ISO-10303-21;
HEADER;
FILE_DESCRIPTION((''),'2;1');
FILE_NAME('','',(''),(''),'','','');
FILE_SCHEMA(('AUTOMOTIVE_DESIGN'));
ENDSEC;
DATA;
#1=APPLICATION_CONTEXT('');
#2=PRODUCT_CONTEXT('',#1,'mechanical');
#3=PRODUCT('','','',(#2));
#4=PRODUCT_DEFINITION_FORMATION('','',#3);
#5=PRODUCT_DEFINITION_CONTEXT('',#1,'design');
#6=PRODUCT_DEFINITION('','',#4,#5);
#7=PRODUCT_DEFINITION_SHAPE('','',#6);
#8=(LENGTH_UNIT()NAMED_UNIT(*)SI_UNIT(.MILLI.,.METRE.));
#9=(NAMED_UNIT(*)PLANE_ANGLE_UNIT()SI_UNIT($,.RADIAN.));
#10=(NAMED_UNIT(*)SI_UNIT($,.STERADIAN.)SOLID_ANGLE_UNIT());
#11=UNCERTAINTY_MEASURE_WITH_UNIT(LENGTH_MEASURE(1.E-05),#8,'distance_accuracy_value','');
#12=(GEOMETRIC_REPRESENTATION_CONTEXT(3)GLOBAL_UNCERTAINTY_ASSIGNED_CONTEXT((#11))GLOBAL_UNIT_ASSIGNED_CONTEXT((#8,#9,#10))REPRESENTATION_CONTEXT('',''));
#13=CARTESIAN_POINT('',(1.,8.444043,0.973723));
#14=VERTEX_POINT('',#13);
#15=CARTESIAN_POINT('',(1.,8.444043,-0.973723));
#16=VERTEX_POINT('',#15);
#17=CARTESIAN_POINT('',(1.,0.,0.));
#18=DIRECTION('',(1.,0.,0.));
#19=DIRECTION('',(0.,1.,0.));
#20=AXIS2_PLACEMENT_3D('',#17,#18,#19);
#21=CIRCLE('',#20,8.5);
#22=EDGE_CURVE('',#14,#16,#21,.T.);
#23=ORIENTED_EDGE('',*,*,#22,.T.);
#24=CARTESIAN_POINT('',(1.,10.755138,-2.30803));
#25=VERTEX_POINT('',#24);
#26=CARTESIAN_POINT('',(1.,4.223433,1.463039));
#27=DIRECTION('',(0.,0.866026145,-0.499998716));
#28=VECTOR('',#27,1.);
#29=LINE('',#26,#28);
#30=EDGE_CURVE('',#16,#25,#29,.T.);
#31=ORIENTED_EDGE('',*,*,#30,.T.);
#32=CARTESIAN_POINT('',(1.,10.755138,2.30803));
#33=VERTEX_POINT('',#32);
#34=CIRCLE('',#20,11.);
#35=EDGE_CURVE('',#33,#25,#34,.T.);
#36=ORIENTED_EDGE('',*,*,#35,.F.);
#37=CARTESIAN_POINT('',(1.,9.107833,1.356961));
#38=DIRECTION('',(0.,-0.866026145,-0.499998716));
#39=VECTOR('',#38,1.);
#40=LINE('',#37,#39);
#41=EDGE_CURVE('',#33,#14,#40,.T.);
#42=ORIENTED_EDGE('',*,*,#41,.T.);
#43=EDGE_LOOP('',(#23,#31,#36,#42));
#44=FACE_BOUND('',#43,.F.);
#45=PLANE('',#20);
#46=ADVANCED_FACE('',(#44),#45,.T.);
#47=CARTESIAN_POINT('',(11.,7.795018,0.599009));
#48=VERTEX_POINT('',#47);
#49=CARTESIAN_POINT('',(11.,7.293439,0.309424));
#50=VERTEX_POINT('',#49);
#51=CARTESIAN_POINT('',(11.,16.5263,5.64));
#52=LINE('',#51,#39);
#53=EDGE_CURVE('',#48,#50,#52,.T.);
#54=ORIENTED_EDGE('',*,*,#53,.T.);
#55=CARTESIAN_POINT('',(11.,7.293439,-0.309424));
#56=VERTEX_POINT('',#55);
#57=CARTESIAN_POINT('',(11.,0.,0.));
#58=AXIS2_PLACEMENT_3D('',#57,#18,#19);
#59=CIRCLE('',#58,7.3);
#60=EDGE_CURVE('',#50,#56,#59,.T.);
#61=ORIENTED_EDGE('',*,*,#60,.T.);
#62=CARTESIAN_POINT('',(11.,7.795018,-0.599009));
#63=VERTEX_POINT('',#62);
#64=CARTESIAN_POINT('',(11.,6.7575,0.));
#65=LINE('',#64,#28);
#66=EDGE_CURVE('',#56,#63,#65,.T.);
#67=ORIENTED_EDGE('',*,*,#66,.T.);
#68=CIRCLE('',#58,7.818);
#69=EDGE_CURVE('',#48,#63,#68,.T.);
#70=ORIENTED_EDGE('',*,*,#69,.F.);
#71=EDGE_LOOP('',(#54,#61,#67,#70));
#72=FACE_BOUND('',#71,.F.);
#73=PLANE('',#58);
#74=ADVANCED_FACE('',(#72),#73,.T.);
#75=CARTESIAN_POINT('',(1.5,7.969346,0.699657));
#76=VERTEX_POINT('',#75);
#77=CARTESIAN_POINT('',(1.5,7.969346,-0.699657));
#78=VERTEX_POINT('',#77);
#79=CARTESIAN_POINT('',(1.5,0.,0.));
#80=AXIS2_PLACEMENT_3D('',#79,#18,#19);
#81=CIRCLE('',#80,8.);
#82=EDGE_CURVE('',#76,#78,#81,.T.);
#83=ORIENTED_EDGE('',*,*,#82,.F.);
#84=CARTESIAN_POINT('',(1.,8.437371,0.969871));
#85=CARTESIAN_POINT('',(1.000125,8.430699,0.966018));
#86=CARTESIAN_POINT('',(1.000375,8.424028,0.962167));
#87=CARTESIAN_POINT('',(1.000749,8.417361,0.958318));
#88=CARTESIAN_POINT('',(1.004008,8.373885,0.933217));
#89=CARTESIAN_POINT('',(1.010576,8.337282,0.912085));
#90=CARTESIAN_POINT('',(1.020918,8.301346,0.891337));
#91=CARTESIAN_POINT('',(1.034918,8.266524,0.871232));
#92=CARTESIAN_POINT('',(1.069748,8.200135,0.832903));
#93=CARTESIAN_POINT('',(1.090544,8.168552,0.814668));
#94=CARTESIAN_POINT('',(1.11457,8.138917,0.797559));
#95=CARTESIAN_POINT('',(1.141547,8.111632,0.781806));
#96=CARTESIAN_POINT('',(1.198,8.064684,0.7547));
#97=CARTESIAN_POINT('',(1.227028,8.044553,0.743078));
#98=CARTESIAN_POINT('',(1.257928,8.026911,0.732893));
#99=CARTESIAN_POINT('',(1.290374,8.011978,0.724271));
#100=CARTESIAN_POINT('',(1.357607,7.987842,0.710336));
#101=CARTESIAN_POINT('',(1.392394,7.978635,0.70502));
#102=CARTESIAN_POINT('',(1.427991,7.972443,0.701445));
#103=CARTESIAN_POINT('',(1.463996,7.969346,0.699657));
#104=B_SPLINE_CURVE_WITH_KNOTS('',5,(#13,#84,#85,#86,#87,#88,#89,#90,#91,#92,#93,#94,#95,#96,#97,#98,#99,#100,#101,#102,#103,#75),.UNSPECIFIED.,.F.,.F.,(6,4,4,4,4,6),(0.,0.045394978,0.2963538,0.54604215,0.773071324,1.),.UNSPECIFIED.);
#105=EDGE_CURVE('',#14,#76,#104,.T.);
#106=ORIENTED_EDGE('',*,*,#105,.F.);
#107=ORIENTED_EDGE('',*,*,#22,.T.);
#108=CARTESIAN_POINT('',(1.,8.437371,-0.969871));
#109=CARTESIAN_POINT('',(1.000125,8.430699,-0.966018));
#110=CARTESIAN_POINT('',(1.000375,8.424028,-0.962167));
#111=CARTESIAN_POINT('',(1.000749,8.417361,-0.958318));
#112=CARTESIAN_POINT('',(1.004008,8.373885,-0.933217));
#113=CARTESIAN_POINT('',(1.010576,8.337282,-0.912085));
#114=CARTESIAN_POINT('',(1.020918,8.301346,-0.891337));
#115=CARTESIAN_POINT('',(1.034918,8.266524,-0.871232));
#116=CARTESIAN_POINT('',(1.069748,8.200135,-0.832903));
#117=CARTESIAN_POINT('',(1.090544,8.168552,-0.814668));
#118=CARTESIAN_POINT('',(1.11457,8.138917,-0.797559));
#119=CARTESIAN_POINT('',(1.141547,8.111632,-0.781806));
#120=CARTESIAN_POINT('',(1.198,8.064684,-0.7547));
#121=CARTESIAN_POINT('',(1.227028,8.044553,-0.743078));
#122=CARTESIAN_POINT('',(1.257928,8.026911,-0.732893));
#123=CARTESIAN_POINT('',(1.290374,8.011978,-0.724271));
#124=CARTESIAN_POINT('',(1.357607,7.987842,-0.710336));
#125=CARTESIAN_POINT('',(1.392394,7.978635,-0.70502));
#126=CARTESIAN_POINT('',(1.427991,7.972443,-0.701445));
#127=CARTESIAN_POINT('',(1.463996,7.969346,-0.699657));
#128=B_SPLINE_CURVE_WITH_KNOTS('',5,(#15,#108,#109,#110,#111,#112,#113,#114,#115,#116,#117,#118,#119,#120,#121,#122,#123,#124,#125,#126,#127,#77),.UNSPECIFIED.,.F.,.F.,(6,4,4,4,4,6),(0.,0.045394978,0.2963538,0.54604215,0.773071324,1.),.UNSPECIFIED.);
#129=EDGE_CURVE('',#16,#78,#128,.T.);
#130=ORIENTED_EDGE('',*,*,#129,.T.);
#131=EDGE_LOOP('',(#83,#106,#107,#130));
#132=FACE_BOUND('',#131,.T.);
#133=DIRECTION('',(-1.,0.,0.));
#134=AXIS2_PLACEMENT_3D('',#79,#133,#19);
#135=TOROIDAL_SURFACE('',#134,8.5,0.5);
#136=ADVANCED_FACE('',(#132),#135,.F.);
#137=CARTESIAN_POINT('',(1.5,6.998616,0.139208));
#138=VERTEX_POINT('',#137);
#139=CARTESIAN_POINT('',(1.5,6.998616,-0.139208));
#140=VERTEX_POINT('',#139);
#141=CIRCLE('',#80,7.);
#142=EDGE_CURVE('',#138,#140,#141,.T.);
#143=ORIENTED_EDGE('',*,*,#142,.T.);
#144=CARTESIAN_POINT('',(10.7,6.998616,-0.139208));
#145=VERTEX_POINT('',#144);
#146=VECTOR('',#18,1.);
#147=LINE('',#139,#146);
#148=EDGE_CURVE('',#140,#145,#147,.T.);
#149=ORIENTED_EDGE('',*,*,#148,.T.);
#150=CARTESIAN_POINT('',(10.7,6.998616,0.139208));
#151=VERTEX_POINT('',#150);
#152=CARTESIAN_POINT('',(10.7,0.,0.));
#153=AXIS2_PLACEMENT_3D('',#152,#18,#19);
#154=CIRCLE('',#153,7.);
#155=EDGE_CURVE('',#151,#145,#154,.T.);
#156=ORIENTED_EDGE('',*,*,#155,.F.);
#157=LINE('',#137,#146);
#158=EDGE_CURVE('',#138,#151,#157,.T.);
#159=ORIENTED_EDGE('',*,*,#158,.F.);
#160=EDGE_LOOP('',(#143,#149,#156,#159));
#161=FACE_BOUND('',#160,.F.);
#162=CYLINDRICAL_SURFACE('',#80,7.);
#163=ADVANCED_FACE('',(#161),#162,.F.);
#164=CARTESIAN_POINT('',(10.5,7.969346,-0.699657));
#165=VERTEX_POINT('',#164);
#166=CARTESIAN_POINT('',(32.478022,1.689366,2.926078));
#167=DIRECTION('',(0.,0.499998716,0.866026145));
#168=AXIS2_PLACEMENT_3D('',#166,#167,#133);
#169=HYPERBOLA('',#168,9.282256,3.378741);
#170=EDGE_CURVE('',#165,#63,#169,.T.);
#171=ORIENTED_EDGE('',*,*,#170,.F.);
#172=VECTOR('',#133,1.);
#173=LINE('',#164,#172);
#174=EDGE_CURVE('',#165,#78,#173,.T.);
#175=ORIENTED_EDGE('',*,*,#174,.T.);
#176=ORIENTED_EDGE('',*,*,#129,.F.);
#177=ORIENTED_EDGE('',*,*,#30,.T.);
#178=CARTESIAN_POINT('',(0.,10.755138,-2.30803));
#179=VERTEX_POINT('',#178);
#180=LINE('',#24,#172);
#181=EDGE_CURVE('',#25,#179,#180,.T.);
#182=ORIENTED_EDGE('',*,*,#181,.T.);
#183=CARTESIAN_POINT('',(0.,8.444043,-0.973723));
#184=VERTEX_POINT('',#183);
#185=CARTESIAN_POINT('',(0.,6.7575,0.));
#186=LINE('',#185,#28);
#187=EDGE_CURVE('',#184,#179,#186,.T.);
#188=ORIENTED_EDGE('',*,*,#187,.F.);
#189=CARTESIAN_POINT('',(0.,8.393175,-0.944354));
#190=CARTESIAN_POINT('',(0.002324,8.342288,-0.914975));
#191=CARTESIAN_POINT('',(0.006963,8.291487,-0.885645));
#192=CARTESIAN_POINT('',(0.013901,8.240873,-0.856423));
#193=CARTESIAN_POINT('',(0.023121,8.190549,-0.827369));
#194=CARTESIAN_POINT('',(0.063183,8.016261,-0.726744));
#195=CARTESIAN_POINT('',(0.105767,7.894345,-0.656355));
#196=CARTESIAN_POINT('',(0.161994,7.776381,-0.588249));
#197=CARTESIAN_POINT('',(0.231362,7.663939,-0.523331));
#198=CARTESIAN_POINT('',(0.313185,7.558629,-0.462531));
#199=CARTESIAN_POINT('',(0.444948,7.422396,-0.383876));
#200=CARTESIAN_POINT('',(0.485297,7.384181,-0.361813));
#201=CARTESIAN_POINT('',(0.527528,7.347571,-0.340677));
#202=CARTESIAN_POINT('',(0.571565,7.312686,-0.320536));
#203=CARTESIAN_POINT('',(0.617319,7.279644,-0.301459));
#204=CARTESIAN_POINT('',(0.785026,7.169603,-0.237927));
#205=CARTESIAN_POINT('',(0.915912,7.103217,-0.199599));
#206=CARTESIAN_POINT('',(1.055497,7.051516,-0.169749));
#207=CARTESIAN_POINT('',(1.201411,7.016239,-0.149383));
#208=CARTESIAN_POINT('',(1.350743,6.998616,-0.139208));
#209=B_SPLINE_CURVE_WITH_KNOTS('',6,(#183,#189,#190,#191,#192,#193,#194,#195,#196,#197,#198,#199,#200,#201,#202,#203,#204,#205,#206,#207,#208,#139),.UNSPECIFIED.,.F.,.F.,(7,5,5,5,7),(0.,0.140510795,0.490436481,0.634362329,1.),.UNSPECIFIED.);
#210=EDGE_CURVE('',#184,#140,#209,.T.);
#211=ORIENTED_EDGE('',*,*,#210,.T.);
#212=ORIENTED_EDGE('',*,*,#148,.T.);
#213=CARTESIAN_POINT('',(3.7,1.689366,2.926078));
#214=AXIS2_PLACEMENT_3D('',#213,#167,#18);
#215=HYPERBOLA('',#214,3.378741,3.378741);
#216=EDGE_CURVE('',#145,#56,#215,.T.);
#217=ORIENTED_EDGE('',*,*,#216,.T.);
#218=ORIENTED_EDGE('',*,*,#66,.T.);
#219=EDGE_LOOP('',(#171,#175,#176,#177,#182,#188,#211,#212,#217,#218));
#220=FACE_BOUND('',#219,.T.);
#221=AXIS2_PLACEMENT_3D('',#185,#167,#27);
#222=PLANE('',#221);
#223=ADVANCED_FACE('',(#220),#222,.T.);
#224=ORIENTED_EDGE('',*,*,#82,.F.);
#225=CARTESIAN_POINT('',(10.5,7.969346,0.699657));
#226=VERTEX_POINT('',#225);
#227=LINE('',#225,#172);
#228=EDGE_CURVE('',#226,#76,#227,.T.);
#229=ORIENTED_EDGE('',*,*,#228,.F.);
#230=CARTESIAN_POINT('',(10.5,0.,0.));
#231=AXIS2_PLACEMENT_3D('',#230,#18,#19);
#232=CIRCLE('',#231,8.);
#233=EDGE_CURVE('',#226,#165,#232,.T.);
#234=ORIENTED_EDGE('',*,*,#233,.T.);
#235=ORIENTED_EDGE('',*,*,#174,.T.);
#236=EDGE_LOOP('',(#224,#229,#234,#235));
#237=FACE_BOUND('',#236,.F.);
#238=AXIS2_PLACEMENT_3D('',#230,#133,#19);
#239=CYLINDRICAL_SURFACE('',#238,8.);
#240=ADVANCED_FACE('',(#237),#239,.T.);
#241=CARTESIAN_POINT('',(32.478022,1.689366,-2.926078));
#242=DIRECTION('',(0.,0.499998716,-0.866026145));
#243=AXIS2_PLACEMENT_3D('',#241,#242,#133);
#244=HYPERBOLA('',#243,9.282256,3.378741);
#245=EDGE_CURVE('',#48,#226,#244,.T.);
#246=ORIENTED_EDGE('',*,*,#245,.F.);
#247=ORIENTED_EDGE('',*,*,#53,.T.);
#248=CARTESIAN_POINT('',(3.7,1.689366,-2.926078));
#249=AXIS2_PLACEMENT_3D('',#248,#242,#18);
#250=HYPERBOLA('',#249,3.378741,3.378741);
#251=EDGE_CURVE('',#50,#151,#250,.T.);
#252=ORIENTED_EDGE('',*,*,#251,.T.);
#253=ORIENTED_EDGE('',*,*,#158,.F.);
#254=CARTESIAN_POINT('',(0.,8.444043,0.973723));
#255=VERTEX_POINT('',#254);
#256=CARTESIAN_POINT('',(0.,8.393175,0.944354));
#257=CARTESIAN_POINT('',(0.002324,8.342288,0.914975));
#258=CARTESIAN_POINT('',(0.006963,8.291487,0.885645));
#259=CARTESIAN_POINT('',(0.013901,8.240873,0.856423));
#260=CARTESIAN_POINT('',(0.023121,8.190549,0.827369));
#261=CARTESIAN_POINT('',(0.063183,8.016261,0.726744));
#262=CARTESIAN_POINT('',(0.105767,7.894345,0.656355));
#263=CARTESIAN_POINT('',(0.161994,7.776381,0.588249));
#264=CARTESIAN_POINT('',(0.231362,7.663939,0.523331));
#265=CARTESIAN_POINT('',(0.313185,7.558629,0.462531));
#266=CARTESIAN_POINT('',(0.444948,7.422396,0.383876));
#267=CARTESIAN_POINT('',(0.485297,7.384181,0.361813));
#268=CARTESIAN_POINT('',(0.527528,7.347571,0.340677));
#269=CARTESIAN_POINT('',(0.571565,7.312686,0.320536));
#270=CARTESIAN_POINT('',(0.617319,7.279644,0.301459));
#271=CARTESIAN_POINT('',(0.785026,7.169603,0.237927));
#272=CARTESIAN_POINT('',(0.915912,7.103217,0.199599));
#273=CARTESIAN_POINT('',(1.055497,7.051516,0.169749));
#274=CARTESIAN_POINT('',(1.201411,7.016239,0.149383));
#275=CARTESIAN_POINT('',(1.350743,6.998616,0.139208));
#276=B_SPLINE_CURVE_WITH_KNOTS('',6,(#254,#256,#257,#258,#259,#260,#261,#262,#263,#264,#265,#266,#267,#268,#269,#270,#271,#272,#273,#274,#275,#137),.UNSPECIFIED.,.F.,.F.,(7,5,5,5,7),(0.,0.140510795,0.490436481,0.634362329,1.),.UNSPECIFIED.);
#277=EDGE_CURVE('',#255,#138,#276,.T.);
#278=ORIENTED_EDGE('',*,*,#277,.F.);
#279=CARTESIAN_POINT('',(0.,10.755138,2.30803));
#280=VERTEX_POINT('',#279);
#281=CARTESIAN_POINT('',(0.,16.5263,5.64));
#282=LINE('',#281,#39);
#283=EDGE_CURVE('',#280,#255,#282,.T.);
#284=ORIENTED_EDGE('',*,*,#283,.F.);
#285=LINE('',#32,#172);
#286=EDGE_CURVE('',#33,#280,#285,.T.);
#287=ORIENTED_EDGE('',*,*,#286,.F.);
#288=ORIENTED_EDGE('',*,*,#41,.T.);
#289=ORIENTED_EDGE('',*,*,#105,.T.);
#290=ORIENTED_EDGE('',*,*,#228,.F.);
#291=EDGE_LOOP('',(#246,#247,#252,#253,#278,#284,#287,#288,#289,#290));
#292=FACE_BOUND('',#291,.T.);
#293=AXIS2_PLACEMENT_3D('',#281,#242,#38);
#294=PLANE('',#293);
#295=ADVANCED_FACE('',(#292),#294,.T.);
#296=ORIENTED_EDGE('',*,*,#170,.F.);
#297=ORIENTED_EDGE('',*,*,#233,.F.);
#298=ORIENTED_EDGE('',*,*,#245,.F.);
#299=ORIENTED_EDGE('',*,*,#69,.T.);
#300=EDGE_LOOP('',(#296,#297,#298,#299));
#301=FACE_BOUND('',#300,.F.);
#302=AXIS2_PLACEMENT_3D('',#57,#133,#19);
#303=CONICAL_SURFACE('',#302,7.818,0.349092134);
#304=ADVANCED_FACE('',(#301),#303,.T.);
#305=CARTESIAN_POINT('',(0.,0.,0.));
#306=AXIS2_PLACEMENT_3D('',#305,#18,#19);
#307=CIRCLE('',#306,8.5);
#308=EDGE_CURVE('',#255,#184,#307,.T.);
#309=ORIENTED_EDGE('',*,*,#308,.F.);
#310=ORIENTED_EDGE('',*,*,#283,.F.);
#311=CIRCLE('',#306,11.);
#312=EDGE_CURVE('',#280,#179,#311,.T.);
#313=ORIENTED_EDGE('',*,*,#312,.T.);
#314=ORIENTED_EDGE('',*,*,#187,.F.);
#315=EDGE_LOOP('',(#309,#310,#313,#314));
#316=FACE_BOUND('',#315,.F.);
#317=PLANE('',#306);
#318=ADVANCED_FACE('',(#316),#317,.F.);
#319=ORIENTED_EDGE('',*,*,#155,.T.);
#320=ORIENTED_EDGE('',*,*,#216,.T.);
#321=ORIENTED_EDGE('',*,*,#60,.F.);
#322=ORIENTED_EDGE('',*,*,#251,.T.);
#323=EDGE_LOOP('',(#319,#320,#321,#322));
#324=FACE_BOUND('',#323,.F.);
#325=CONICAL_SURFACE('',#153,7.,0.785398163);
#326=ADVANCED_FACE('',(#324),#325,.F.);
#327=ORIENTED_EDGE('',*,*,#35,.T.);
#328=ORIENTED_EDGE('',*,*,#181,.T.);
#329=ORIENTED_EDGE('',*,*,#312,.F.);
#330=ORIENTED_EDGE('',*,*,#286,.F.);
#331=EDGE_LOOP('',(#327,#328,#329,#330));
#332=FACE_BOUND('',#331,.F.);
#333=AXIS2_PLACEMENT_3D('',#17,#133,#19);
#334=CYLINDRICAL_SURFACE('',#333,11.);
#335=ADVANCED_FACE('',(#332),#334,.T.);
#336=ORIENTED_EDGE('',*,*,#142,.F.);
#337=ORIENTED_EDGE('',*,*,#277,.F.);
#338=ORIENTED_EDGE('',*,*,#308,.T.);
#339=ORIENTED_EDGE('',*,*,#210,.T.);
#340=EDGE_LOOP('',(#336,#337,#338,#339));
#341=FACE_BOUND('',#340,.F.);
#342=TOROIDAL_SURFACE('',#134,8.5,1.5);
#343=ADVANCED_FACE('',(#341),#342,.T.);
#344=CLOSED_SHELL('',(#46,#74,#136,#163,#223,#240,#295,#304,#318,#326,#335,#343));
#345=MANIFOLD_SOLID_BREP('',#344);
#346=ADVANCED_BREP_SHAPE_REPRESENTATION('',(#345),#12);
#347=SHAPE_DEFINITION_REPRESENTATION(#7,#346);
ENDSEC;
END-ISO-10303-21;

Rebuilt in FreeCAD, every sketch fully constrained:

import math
import FreeCAD as App
import Part
import Sketcher

V = App.Vector
Q = App.Units.Quantity


def add_polygon(sketch, points):
    """Adds a closed chain of lines whose ends are joined by coincident constraints."""
    first, n = sketch.GeometryCount, len(points)
    for a, b in zip(points, points[1:] + points[:1]):
        sketch.addGeometry(Part.LineSegment(App.Vector(*a, 0), App.Vector(*b, 0)), False)
    for i in range(n):
        sketch.addConstraint(Sketcher.Constraint("Coincident", first + i, 2, first + (i + 1) % n, 1))

doc = App.newDocument("Part")
body = doc.addObject("PartDesign::Body", "Body")

sketch1 = body.newObject("Sketcher::SketchObject", "Sketch")
sketch1.AttachmentSupport = (doc.getObject("XY_Plane"), [""])
sketch1.MapMode = "FlatFace"
sketch1.addGeometry(Part.LineSegment(V(0, 11, 0), V(0, 8.5, 0)), False)
sketch1.addGeometry(Part.ArcOfCircle(Part.Circle(V(1.5, 8.5, 0), V(0, 0, 1), 1.5), math.radians(180), math.radians(270)), False)
sketch1.addGeometry(Part.LineSegment(V(1.5, 7, 0), V(10.7, 7, 0)), False)
sketch1.addGeometry(Part.LineSegment(V(10.7, 7, 0), V(11, 7.3, 0)), False)
sketch1.addGeometry(Part.LineSegment(V(11, 7.3, 0), V(11, 7.82, 0)), False)
sketch1.addGeometry(Part.LineSegment(V(11, 7.82, 0), V(10.5, 8, 0)), False)
sketch1.addGeometry(Part.LineSegment(V(10.5, 8, 0), V(1.5, 8, 0)), False)
sketch1.addGeometry(Part.ArcOfCircle(Part.Circle(V(1.5, 8.5, 0), V(0, 0, 1), 0.5), math.radians(180), math.radians(270)), False)
sketch1.addGeometry(Part.LineSegment(V(1, 8.5, 0), V(1, 11, 0)), False)
sketch1.addGeometry(Part.LineSegment(V(1, 11, 0), V(0, 11, 0)), False)
sketch1.addConstraint(Sketcher.Constraint("Tangent", 0, 2, 1, 1))
sketch1.addConstraint(Sketcher.Constraint("Tangent", 1, 2, 2, 1))
sketch1.addConstraint(Sketcher.Constraint("Coincident", 2, 2, 3, 1))
sketch1.addConstraint(Sketcher.Constraint("Coincident", 3, 2, 4, 1))
sketch1.addConstraint(Sketcher.Constraint("Coincident", 4, 2, 5, 1))
sketch1.addConstraint(Sketcher.Constraint("Coincident", 5, 2, 6, 1))
sketch1.addConstraint(Sketcher.Constraint("Tangent", 6, 2, 7, 2))
sketch1.addConstraint(Sketcher.Constraint("Tangent", 7, 1, 8, 1))
sketch1.addConstraint(Sketcher.Constraint("Coincident", 8, 2, 9, 1))
sketch1.addConstraint(Sketcher.Constraint("Coincident", 9, 2, 0, 1))
sketch1.addConstraint(Sketcher.Constraint("Vertical", 0))
sketch1.addConstraint(Sketcher.Constraint("Horizontal", 2))
sketch1.addConstraint(Sketcher.Constraint("Vertical", 4))
sketch1.addConstraint(Sketcher.Constraint("Horizontal", 6))
sketch1.addConstraint(Sketcher.Constraint("Vertical", 8))
sketch1.addConstraint(Sketcher.Constraint("Horizontal", 9))
sketch1.addConstraint(Sketcher.Constraint("Coincident", 7, 3, 1, 3))
sketch1.addConstraint(Sketcher.Constraint("PointOnObject", 0, 2, -2))
sketch1.addConstraint(Sketcher.Constraint("DistanceX", -1, 1, 3, 2, Q("11 mm")))
sketch1.addConstraint(Sketcher.Constraint("DistanceY", -1, 1, 8, 2, Q("11 mm")))
sketch1.addConstraint(Sketcher.Constraint("Radius", 1, Q("1.5 mm")))
sketch1.addConstraint(Sketcher.Constraint("Radius", 7, Q("0.5 mm")))
sketch1.addConstraint(Sketcher.Constraint("DistanceX", 6, 2, 6, 1, Q("9 mm")))
sketch1.addConstraint(Sketcher.Constraint("Angle", 3, Q("45 deg")))
sketch1.addConstraint(Sketcher.Constraint("DistanceX", 2, 1, 2, 2, Q("9.2 mm")))
sketch1.addConstraint(Sketcher.Constraint("DistanceY", 0, 2, 0, 1, Q("2.5 mm")))
sketch1.addConstraint(Sketcher.Constraint("DistanceY", 4, 1, 4, 2, Q("0.518 mm")))
revolution = body.newObject("PartDesign::Revolution", "Revolution")
revolution.Profile = sketch1
revolution.ReferenceAxis = (sketch1, ["H_Axis"])
revolution.Angle = 360

sketch2 = body.newObject("Sketcher::SketchObject", "Sketch001")
sketch2.AttachmentSupport = (doc.getObject("YZ_Plane"), [""])
sketch2.MapMode = "FlatFace"
add_polygon(sketch2, [(17, -6), (17, 6), (7, 0)])
sketch2.addConstraint(Sketcher.Constraint("Vertical", 0))
sketch2.addConstraint(Sketcher.Constraint("PointOnObject", 1, 2, -1))
sketch2.addConstraint(Sketcher.Constraint("Equal", 1, 2))
sketch2.addConstraint(Sketcher.Constraint("Angle", 1, Q("-150 deg")))
sketch2.addConstraint(Sketcher.Constraint("DistanceY", 0, 1, 0, 2, Q("11.28 mm")))
sketch2.addConstraint(Sketcher.Constraint("DistanceX", -1, 1, 0, 2, Q("16.5263 mm")))
pocket1 = body.newObject("PartDesign::Pocket", "Pocket")
pocket1.Profile = sketch2
pocket1.Length = 11
pocket1.Reversed = True

doc.recompute()
